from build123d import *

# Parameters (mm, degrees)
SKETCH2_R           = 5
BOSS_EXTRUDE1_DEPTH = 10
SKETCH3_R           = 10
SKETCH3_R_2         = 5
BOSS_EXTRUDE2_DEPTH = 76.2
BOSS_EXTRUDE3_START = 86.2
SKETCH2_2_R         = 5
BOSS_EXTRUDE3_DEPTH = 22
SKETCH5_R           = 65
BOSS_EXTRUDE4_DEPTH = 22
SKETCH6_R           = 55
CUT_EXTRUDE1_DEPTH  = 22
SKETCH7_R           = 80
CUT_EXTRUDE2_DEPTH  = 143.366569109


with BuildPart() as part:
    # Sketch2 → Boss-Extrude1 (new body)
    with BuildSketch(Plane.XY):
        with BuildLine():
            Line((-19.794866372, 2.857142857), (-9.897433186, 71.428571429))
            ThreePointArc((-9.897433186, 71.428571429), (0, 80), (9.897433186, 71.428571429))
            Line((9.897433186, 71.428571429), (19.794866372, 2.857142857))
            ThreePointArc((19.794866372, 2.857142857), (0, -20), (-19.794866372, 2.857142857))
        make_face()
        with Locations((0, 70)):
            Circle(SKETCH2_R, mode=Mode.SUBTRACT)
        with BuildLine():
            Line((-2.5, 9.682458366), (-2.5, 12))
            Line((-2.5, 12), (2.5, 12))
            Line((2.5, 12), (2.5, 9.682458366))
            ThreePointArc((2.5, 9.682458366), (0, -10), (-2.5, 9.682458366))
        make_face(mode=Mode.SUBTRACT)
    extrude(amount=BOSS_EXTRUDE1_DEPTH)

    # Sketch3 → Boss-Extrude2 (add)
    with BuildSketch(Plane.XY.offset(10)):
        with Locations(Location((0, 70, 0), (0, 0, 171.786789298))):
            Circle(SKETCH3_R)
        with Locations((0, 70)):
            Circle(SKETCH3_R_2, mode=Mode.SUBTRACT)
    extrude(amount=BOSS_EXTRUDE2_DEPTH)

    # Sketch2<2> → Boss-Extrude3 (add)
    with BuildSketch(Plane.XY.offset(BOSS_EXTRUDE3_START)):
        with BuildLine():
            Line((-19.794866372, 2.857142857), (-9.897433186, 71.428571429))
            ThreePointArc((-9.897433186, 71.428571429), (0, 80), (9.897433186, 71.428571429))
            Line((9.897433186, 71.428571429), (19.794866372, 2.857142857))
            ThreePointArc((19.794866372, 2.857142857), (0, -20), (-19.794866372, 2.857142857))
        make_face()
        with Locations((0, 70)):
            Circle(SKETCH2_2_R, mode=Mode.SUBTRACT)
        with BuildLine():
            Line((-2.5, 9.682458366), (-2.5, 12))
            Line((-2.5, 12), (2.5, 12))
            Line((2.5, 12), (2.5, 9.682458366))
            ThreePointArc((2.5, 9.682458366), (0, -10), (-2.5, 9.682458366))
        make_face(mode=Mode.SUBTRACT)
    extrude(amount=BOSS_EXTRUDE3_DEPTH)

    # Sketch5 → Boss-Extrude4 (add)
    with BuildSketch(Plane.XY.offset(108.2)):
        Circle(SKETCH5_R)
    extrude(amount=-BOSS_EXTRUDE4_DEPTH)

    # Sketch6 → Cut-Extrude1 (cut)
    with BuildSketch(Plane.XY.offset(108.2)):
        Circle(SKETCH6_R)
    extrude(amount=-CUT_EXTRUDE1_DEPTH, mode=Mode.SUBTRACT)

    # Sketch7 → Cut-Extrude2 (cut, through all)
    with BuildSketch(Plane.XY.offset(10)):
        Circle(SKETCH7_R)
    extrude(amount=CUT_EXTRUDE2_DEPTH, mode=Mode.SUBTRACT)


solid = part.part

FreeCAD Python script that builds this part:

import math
import FreeCAD as App
import Part
import Sketcher

doc = App.newDocument("Part")
body = doc.addObject("PartDesign::Body", "Body")

# Sketch on XY plane
sketch1 = body.newObject("Sketcher::SketchObject", "Sketch")
sketch1.AttachmentSupport = (doc.getObject("XY_Plane"), [""])
sketch1.MapMode = "FlatFace"
sketch1.addGeometry([
    Part.LineSegment(App.Vector(-9.897433, 71.428571, 0), App.Vector(-19.794866, 2.857143, 0)),  # 0
    Part.ArcOfCircle(Part.Circle(App.Vector(0, 0, 0), App.Vector(0, 0, 1), 20), math.radians(171.786789), math.radians(368.213211)),  # 1
    Part.LineSegment(App.Vector(19.794866, 2.857143, 0), App.Vector(9.897433, 71.428571, 0)),  # 2
    Part.ArcOfCircle(Part.Circle(App.Vector(0, 70, 0), App.Vector(0, 0, 1), 10), math.radians(8.213211), math.radians(171.786789)),  # 3
    Part.LineSegment(App.Vector(-2.5, 9.682458, 0), App.Vector(-2.5, 12, 0)),  # 4
    Part.LineSegment(App.Vector(-2.5, 12, 0), App.Vector(2.5, 12, 0)),  # 5
    Part.LineSegment(App.Vector(2.5, 12, 0), App.Vector(2.5, 9.682458, 0)),  # 6
    Part.ArcOfCircle(Part.Circle(App.Vector(0, 0, 0), App.Vector(0, 0, 1), 10), math.radians(104.477512), math.radians(435.522488)),  # 7
    Part.Circle(App.Vector(0, 70, 0), App.Vector(0, 0, 1), 5),  # 8
], False)
sketch1.addConstraint([
    Sketcher.Constraint("Tangent", 0, 2, 1, 1),
    Sketcher.Constraint("Tangent", 1, 2, 2, 1),
    Sketcher.Constraint("Tangent", 2, 2, 3, 1),
    Sketcher.Constraint("Tangent", 3, 2, 0, 1),
    Sketcher.Constraint("Coincident", 4, 2, 5, 1),
    Sketcher.Constraint("Coincident", 5, 2, 6, 1),
    Sketcher.Constraint("Coincident", 6, 2, 7, 2),
    Sketcher.Constraint("Coincident", 7, 1, 4, 1),
    Sketcher.Constraint("Vertical", 4),
    Sketcher.Constraint("Horizontal", 5),
    Sketcher.Constraint("Vertical", 6),
    Sketcher.Constraint("Coincident", 1, 3, -1, 1),
    Sketcher.Constraint("Coincident", 7, 3, -1, 1),
    Sketcher.Constraint("Coincident", 8, 3, 3, 3),
    Sketcher.Constraint("Equal", 3, 7),
    Sketcher.Constraint("PointOnObject", 3, 3, -2),
    Sketcher.Constraint("Horizontal", 6, 2, 7, 1),
    Sketcher.Constraint("Diameter", 8, 10.0),
    Sketcher.Constraint("Radius", 1, 20.0),
    Sketcher.Constraint("Radius", 3, 10.0),
    Sketcher.Constraint("DistanceX", 5, 1, 5, 2, 5.0),
    Sketcher.Constraint("DistanceY", -1, 1, 3, 3, 70.0),
    Sketcher.Constraint("DistanceY", -1, 1, 4, 2, 12.0),
])
pad1 = body.newObject("PartDesign::Pad", "Pad")
pad1.Profile = sketch1
pad1.Length = 10

# Sketch on XY plane
sketch2 = body.newObject("Sketcher::SketchObject", "Sketch001")
sketch2.AttachmentSupport = (doc.getObject("XY_Plane"), [""])
sketch2.MapMode = "FlatFace"
sketch2.AttachmentOffset = App.Placement(App.Vector(0, 0, 10), App.Rotation())
sketch2.addGeometry([
    Part.Circle(App.Vector(0, 70, 0), App.Vector(0, 0, 1), 10),
    Part.Circle(App.Vector(0, 70, 0), App.Vector(0, 0, 1), 5),
], False)
sketch2.addConstraint([
    Sketcher.Constraint("Coincident", 1, 3, 0, 3),
    Sketcher.Constraint("PointOnObject", 0, 3, -2),
    Sketcher.Constraint("Diameter", 0, 20.0),
    Sketcher.Constraint("Diameter", 1, 10.0),
    Sketcher.Constraint("DistanceY", -1, 1, 0, 3, 70.0),
])
pad2 = body.newObject("PartDesign::Pad", "Pad001")
pad2.Profile = sketch2
pad2.Length = 76.2

# Sketch on XY plane
sketch3 = body.newObject("Sketcher::SketchObject", "Sketch002")
sketch3.AttachmentSupport = (doc.getObject("XY_Plane"), [""])
sketch3.MapMode = "FlatFace"
sketch3.AttachmentOffset = App.Placement(App.Vector(0, 0, 86.2), App.Rotation())
sketch3.addGeometry([
    Part.LineSegment(App.Vector(-9.897433, 71.428571, 0), App.Vector(-19.794866, 2.857143, 0)),  # 0
    Part.ArcOfCircle(Part.Circle(App.Vector(0, 0, 0), App.Vector(0, 0, 1), 20), math.radians(171.786789), math.radians(368.213211)),  # 1
    Part.LineSegment(App.Vector(19.794866, 2.857143, 0), App.Vector(9.897433, 71.428571, 0)),  # 2
    Part.ArcOfCircle(Part.Circle(App.Vector(0, 70, 0), App.Vector(0, 0, 1), 10), math.radians(8.213211), math.radians(171.786789)),  # 3
    Part.LineSegment(App.Vector(-2.5, 9.682458, 0), App.Vector(-2.5, 12, 0)),  # 4
    Part.LineSegment(App.Vector(-2.5, 12, 0), App.Vector(2.5, 12, 0)),  # 5
    Part.LineSegment(App.Vector(2.5, 12, 0), App.Vector(2.5, 9.682458, 0)),  # 6
    Part.ArcOfCircle(Part.Circle(App.Vector(0, 0, 0), App.Vector(0, 0, 1), 10), math.radians(104.477512), math.radians(435.522488)),  # 7
    Part.Circle(App.Vector(0, 70, 0), App.Vector(0, 0, 1), 5),  # 8
], False)
sketch3.addConstraint([
    Sketcher.Constraint("Tangent", 0, 2, 1, 1),
    Sketcher.Constraint("Tangent", 1, 2, 2, 1),
    Sketcher.Constraint("Tangent", 2, 2, 3, 1),
    Sketcher.Constraint("Tangent", 3, 2, 0, 1),
    Sketcher.Constraint("Coincident", 4, 2, 5, 1),
    Sketcher.Constraint("Coincident", 5, 2, 6, 1),
    Sketcher.Constraint("Coincident", 6, 2, 7, 2),
    Sketcher.Constraint("Coincident", 7, 1, 4, 1),
    Sketcher.Constraint("Vertical", 4),
    Sketcher.Constraint("Horizontal", 5),
    Sketcher.Constraint("Vertical", 6),
    Sketcher.Constraint("Coincident", 1, 3, -1, 1),
    Sketcher.Constraint("Coincident", 7, 3, -1, 1),
    Sketcher.Constraint("Coincident", 8, 3, 3, 3),
    Sketcher.Constraint("Equal", 3, 7),
    Sketcher.Constraint("PointOnObject", 3, 3, -2),
    Sketcher.Constraint("Horizontal", 6, 2, 7, 1),
    Sketcher.Constraint("Diameter", 8, 10.0),
    Sketcher.Constraint("Radius", 1, 20.0),
    Sketcher.Constraint("Radius", 3, 10.0),
    Sketcher.Constraint("DistanceX", 5, 1, 5, 2, 5.0),
    Sketcher.Constraint("DistanceY", -1, 1, 3, 3, 70.0),
    Sketcher.Constraint("DistanceY", -1, 1, 4, 2, 12.0),
])
pad3 = body.newObject("PartDesign::Pad", "Pad002")
pad3.Profile = sketch3
pad3.Length = 22

# Sketch on XY plane
sketch4 = body.newObject("Sketcher::SketchObject", "Sketch003")
sketch4.AttachmentSupport = (doc.getObject("XY_Plane"), [""])
sketch4.MapMode = "FlatFace"
sketch4.AttachmentOffset = App.Placement(App.Vector(0, 0, 108.2), App.Rotation())
sketch4.addGeometry(Part.Circle(App.Vector(0, 0, 0), App.Vector(0, 0, 1), 65), False)
sketch4.addConstraint([
    Sketcher.Constraint("Coincident", 0, 3, -1, 1),
    Sketcher.Constraint("Diameter", 0, 130.0),
])
pad4 = body.newObject("PartDesign::Pad", "Pad003")
pad4.Profile = sketch4
pad4.Length = 22
pad4.Reversed = True

# Sketch on XY plane
sketch5 = body.newObject("Sketcher::SketchObject", "Sketch004")
sketch5.AttachmentSupport = (doc.getObject("XY_Plane"), [""])
sketch5.MapMode = "FlatFace"
sketch5.AttachmentOffset = App.Placement(App.Vector(0, 0, 108.2), App.Rotation())
sketch5.addGeometry(Part.Circle(App.Vector(0, 0, 0), App.Vector(0, 0, 1), 55), False)
sketch5.addConstraint([
    Sketcher.Constraint("Coincident", 0, 3, -1, 1),
    Sketcher.Constraint("Diameter", 0, 110.0),
])
pocket1 = body.newObject("PartDesign::Pocket", "Pocket")
pocket1.Profile = sketch5
pocket1.Length = 22

# Sketch on XY plane
sketch6 = body.newObject("Sketcher::SketchObject", "Sketch005")
sketch6.AttachmentSupport = (doc.getObject("XY_Plane"), [""])
sketch6.MapMode = "FlatFace"
sketch6.AttachmentOffset = App.Placement(App.Vector(0, 0, 10), App.Rotation())
sketch6.addGeometry(Part.Circle(App.Vector(0, 0, 0), App.Vector(0, 0, 1), 80), False)
sketch6.addConstraint([
    Sketcher.Constraint("Coincident", 0, 3, -1, 1),
    Sketcher.Constraint("Diameter", 0, 160.0),
])
pocket2 = body.newObject("PartDesign::Pocket", "Pocket001")
pocket2.Profile = sketch6
pocket2.Type = "ThroughAll"
pocket2.Reversed = True

doc.recompute()
